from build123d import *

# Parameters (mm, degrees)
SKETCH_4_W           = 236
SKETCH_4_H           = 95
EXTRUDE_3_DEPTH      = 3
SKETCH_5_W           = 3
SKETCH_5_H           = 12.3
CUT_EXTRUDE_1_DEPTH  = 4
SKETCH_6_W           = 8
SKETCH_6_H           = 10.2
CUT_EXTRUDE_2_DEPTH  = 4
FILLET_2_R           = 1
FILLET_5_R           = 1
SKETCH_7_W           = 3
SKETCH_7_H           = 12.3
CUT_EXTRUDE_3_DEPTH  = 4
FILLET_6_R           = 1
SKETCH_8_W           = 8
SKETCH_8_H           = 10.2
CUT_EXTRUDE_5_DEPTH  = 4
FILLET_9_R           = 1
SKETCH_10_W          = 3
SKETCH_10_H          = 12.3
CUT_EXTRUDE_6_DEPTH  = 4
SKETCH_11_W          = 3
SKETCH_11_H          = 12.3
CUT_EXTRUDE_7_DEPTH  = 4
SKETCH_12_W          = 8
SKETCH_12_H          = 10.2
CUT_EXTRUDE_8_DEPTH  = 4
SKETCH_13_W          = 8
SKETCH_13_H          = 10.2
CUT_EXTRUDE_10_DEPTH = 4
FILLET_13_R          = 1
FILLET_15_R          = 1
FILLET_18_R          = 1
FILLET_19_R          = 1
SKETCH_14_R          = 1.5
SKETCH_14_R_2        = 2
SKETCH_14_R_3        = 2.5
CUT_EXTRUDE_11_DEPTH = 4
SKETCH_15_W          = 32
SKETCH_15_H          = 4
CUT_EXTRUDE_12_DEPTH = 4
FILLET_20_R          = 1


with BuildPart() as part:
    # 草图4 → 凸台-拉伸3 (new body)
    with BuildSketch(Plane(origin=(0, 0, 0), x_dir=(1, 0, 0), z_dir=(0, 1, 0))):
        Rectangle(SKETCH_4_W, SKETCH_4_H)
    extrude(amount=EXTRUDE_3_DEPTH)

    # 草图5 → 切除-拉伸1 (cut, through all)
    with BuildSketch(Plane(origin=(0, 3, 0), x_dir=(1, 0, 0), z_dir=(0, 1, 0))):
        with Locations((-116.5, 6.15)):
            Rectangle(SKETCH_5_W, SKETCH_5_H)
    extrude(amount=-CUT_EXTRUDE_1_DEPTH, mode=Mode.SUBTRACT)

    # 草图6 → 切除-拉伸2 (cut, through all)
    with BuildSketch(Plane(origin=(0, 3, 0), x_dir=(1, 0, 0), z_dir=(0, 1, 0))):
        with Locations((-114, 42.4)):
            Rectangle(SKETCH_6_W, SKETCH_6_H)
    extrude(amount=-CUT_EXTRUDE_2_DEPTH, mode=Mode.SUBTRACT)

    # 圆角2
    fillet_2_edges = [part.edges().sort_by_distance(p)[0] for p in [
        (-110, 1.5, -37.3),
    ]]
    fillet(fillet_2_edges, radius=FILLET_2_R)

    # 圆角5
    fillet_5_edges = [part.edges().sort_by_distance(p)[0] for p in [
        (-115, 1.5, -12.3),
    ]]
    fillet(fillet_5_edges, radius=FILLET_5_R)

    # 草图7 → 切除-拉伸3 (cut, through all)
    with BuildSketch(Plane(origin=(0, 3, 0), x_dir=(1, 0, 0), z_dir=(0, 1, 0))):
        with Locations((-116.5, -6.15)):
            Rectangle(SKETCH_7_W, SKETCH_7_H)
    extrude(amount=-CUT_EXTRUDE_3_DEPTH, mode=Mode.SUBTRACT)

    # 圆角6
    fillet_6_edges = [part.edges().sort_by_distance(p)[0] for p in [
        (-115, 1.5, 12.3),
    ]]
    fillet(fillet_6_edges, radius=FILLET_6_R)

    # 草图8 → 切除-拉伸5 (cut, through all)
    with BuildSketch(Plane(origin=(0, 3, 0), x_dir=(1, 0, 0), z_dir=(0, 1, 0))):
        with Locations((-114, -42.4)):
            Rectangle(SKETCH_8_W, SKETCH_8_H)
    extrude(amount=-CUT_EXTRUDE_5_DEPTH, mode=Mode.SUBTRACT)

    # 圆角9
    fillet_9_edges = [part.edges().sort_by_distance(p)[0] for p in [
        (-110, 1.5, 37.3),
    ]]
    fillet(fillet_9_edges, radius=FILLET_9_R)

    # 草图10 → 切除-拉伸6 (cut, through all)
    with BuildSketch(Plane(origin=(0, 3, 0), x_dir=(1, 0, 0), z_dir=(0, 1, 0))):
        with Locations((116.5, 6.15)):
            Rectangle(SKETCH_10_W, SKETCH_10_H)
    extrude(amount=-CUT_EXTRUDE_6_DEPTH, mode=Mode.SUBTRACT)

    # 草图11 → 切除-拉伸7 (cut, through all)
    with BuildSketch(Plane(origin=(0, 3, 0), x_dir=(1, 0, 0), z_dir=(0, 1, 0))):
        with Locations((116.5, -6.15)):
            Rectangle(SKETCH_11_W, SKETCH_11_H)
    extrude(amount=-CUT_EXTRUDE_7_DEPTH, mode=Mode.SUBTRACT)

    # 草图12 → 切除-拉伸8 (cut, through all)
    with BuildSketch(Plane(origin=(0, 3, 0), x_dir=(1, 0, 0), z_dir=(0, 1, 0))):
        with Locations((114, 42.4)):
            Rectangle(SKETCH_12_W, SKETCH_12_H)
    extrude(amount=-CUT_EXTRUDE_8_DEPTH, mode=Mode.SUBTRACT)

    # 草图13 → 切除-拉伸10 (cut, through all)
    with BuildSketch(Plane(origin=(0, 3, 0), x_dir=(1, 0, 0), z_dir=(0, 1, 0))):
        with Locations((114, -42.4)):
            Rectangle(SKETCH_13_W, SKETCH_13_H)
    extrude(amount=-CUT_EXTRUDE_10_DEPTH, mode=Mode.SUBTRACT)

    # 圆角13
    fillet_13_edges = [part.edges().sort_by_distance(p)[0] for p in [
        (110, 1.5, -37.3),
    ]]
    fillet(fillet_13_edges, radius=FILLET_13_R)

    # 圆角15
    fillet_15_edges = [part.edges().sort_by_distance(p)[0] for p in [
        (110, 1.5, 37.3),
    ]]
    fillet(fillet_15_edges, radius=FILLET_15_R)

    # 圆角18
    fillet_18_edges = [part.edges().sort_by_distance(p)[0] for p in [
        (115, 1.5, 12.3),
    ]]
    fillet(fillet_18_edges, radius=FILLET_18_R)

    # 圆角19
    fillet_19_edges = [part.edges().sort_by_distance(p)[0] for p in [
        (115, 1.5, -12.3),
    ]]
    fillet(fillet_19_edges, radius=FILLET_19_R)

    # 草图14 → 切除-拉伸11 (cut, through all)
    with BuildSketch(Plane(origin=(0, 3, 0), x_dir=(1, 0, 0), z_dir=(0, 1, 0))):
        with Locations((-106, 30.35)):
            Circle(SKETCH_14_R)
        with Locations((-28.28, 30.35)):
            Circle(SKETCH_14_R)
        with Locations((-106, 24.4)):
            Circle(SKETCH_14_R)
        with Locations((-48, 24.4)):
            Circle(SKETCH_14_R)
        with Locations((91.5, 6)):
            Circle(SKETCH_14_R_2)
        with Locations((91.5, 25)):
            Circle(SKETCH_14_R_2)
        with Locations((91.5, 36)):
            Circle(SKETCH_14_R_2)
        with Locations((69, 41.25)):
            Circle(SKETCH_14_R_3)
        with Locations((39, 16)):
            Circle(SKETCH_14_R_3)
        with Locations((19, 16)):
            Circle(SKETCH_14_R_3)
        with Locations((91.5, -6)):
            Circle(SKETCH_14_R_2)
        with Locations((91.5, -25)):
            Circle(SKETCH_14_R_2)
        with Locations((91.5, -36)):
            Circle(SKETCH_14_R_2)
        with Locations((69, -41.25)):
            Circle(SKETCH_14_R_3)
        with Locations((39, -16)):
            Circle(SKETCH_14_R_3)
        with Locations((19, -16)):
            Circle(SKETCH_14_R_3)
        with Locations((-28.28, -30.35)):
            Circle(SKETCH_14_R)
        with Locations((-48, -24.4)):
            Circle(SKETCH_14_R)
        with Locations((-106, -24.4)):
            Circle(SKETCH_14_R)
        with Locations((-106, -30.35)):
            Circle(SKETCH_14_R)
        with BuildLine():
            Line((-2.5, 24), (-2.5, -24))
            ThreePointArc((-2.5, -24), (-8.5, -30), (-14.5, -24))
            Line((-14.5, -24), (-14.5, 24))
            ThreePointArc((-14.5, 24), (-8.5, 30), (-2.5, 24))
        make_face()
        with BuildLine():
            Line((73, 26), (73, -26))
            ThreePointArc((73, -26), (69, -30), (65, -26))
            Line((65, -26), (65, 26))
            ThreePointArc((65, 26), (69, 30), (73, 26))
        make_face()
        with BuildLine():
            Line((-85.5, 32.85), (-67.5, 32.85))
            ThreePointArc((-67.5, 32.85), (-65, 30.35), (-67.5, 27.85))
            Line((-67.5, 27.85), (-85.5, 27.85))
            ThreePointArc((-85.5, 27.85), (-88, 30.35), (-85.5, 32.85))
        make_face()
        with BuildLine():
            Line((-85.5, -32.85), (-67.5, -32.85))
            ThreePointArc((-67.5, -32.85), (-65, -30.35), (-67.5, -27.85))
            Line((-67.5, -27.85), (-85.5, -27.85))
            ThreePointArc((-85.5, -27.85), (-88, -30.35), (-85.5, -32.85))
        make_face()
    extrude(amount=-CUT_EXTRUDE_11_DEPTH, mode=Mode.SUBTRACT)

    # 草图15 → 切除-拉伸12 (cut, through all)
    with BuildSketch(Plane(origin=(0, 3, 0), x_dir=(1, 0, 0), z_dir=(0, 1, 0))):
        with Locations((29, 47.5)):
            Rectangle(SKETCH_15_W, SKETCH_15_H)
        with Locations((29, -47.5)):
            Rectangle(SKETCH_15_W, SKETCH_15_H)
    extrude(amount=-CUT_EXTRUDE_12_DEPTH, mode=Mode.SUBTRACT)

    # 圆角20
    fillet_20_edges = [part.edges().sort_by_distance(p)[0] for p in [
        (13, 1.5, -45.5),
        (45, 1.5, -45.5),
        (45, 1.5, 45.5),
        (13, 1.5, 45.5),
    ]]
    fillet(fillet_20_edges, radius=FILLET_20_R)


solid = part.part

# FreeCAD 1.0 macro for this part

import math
import FreeCAD as App
import Part
import Sketcher
from FreeCAD import Vector
Q = App.Units.Quantity


def edges_at(feature, points):
    """Names of the edges that pass closest to the given points."""
    edges = feature.Shape.Edges
    near = lambda p: min(range(len(edges)), key=lambda i: edges[i].distToShape(Part.Vertex(*p))[0])
    return sorted({f"Edge{near(p) + 1}" for p in points})


def add_polygon(sketch, points):
    """Adds a closed chain of lines whose ends are joined by coincident constraints."""
    first, n = sketch.GeometryCount, len(points)
    for a, b in zip(points, points[1:] + points[:1]):
        sketch.addGeometry(Part.LineSegment(App.Vector(*a, 0), App.Vector(*b, 0)), False)
    for i in range(n):
        sketch.addConstraint(Sketcher.Constraint("Coincident", first + i, 2, first + (i + 1) % n, 1))

doc = App.newDocument("Part")
body = doc.addObject("PartDesign::Body", "Body")

# Sketch on XZ plane
sketch1 = doc.addObject("Sketcher::SketchObject", "Sketch")
body.addObject(sketch1)
sketch1.AttachmentSupport = (doc.XZ_Plane, [""])
sketch1.MapMode = "FlatFace"
add_polygon(sketch1, [(-118, -47.5), (-118, 47.5), (118, 47.5), (118, -47.5)])  # lines 0-3
sketch1.addConstraint([
    Sketcher.Constraint("Vertical", 0),
    Sketcher.Constraint("Horizontal", 1),
    Sketcher.Constraint("Vertical", 2),
    Sketcher.Constraint("Horizontal", 3),
    Sketcher.Constraint("Symmetric", 0, 2, 2, 2, -1, 1),
    Sketcher.Constraint("DistanceX", 1, 1, 1, 2, Q("236 mm")),
    Sketcher.Constraint("DistanceY", 0, 1, 0, 2, Q("95 mm")),
])
pad1 = doc.addObject("PartDesign::Pad", "Pad")
body.addObject(pad1)
pad1.Profile = sketch1
pad1.Length = 3
pad1.Reversed = True

# Sketch on XZ plane
sketch2 = doc.addObject("Sketcher::SketchObject", "Sketch001")
body.addObject(sketch2)
sketch2.AttachmentSupport = (doc.XZ_Plane, [""])
sketch2.MapMode = "FlatFace"
sketch2.AttachmentOffset = App.Placement(Vector(0, 0, -3), App.Rotation())
add_polygon(sketch2, [(-118, -12.3), (-118, 0), (-115, 0), (-115, -12.3)])  # lines 0-3
sketch2.addConstraint([
    Sketcher.Constraint("Vertical", 0),
    Sketcher.Constraint("Horizontal", 1),
    Sketcher.Constraint("Vertical", 2),
    Sketcher.Constraint("Horizontal", 3),
    Sketcher.Constraint("PointOnObject", 0, 2, -1),
    Sketcher.Constraint("DistanceX", 1, 1, 1, 2, Q("3 mm")),
    Sketcher.Constraint("DistanceY", 0, 1, 0, 2, Q("12.3 mm")),
    Sketcher.Constraint("DistanceX", 0, 2, -1, 1, Q("118 mm")),
])
pocket1 = doc.addObject("PartDesign::Pocket", "Pocket")
body.addObject(pocket1)
pocket1.Profile = sketch2
pocket1.Type = "ThroughAll"
pocket1.Reversed = True

# Sketch on XZ plane
sketch3 = doc.addObject("Sketcher::SketchObject", "Sketch002")
body.addObject(sketch3)
sketch3.AttachmentSupport = (doc.XZ_Plane, [""])
sketch3.MapMode = "FlatFace"
sketch3.AttachmentOffset = App.Placement(Vector(0, 0, -3), App.Rotation())
add_polygon(sketch3, [(-118, -47.5), (-118, -37.3), (-110, -37.3), (-110, -47.5)])  # lines 0-3
sketch3.addConstraint([
    Sketcher.Constraint("Vertical", 0),
    Sketcher.Constraint("Horizontal", 1),
    Sketcher.Constraint("Vertical", 2),
    Sketcher.Constraint("Horizontal", 3),
    Sketcher.Constraint("DistanceX", 1, 1, 1, 2, Q("8 mm")),
    Sketcher.Constraint("DistanceY", 0, 1, 0, 2, Q("10.2 mm")),
    Sketcher.Constraint("DistanceX", 0, 2, -1, 1, Q("118 mm")),
    Sketcher.Constraint("DistanceY", 0, 2, -1, 1, Q("37.3 mm")),
])
pocket2 = doc.addObject("PartDesign::Pocket", "Pocket001")
body.addObject(pocket2)
pocket2.Profile = sketch3
pocket2.Type = "ThroughAll"
pocket2.Reversed = True
doc.recompute()

fillet = doc.addObject("PartDesign::Fillet", "Fillet")
body.addObject(fillet)
fillet.Base = (pocket2, edges_at(pocket2, [(-110, 1.5, -37.3)]))
fillet.Radius = 1
doc.recompute()

fillet2 = doc.addObject("PartDesign::Fillet", "Fillet001")
body.addObject(fillet2)
fillet2.Base = (fillet, edges_at(fillet, [(-115, 1.5, -12.3)]))
fillet2.Radius = 1

# Sketch on XZ plane
sketch4 = doc.addObject("Sketcher::SketchObject", "Sketch003")
body.addObject(sketch4)
sketch4.AttachmentSupport = (doc.XZ_Plane, [""])
sketch4.MapMode = "FlatFace"
sketch4.AttachmentOffset = App.Placement(Vector(0, 0, -3), App.Rotation())
add_polygon(sketch4, [(-118, 0), (-118, 12.3), (-115, 12.3), (-115, 0)])  # lines 0-3
sketch4.addConstraint([
    Sketcher.Constraint("Vertical", 0),
    Sketcher.Constraint("Horizontal", 1),
    Sketcher.Constraint("Vertical", 2),
    Sketcher.Constraint("Horizontal", 3),
    Sketcher.Constraint("PointOnObject", 2, 2, -1),
    Sketcher.Constraint("DistanceX", 1, 1, 1, 2, Q("3 mm")),
    Sketcher.Constraint("DistanceY", 0, 1, 0, 2, Q("12.3 mm")),
    Sketcher.Constraint("DistanceX", 0, 2, -1, 1, Q("118 mm")),
])
pocket3 = doc.addObject("PartDesign::Pocket", "Pocket002")
body.addObject(pocket3)
pocket3.Profile = sketch4
pocket3.Type = "ThroughAll"
pocket3.Reversed = True
doc.recompute()

fillet3 = doc.addObject("PartDesign::Fillet", "Fillet002")
body.addObject(fillet3)
fillet3.Base = (pocket3, edges_at(pocket3, [(-115, 1.5, 12.3)]))
fillet3.Radius = 1

# Sketch on XZ plane
sketch5 = doc.addObject("Sketcher::SketchObject", "Sketch004")
body.addObject(sketch5)
sketch5.AttachmentSupport = (doc.XZ_Plane, [""])
sketch5.MapMode = "FlatFace"
sketch5.AttachmentOffset = App.Placement(Vector(0, 0, -3), App.Rotation())
add_polygon(sketch5, [(-118, 37.3), (-118, 47.5), (-110, 47.5), (-110, 37.3)])  # lines 0-3
sketch5.addConstraint([
    Sketcher.Constraint("Vertical", 0),
    Sketcher.Constraint("Horizontal", 1),
    Sketcher.Constraint("Vertical", 2),
    Sketcher.Constraint("Horizontal", 3),
    Sketcher.Constraint("DistanceX", 1, 1, 1, 2, Q("8 mm")),
    Sketcher.Constraint("DistanceY", 0, 1, 0, 2, Q("10.2 mm")),
    Sketcher.Constraint("DistanceX", 0, 2, -1, 1, Q("118 mm")),
    Sketcher.Constraint("DistanceY", -1, 1, 0, 2, Q("47.5 mm")),
])
pocket4 = doc.addObject("PartDesign::Pocket", "Pocket003")
body.addObject(pocket4)
pocket4.Profile = sketch5
pocket4.Type = "ThroughAll"
pocket4.Reversed = True
doc.recompute()

fillet4 = doc.addObject("PartDesign::Fillet", "Fillet003")
body.addObject(fillet4)
fillet4.Base = (pocket4, edges_at(pocket4, [(-110, 1.5, 37.3)]))
fillet4.Radius = 1

# Sketch on XZ plane
sketch6 = doc.addObject("Sketcher::SketchObject", "Sketch005")
body.addObject(sketch6)
sketch6.AttachmentSupport = (doc.XZ_Plane, [""])
sketch6.MapMode = "FlatFace"
sketch6.AttachmentOffset = App.Placement(Vector(0, 0, -3), App.Rotation())
add_polygon(sketch6, [(115, -12.3), (115, 0), (118, 0), (118, -12.3)])  # lines 0-3
sketch6.addConstraint([
    Sketcher.Constraint("Vertical", 0),
    Sketcher.Constraint("Horizontal", 1),
    Sketcher.Constraint("Vertical", 2),
    Sketcher.Constraint("Horizontal", 3),
    Sketcher.Constraint("PointOnObject", 0, 2, -1),
    Sketcher.Constraint("DistanceX", 1, 1, 1, 2, Q("3 mm")),
    Sketcher.Constraint("DistanceY", 0, 1, 0, 2, Q("12.3 mm")),
    Sketcher.Constraint("DistanceX", -1, 1, 0, 2, Q("115 mm")),
])
pocket5 = doc.addObject("PartDesign::Pocket", "Pocket004")
body.addObject(pocket5)
pocket5.Profile = sketch6
pocket5.Type = "ThroughAll"
pocket5.Reversed = True

# Sketch on XZ plane
sketch7 = doc.addObject("Sketcher::SketchObject", "Sketch006")
body.addObject(sketch7)
sketch7.AttachmentSupport = (doc.XZ_Plane, [""])
sketch7.MapMode = "FlatFace"
sketch7.AttachmentOffset = App.Placement(Vector(0, 0, -3), App.Rotation())
add_polygon(sketch7, [(115, 0), (115, 12.3), (118, 12.3), (118, 0)])  # lines 0-3
sketch7.addConstraint([
    Sketcher.Constraint("Vertical", 0),
    Sketcher.Constraint("Horizontal", 1),
    Sketcher.Constraint("Vertical", 2),
    Sketcher.Constraint("Horizontal", 3),
    Sketcher.Constraint("PointOnObject", 2, 2, -1),
    Sketcher.Constraint("DistanceX", 1, 1, 1, 2, Q("3 mm")),
    Sketcher.Constraint("DistanceY", 0, 1, 0, 2, Q("12.3 mm")),
    Sketcher.Constraint("DistanceX", -1, 1, 0, 2, Q("115 mm")),
])
pocket6 = doc.addObject("PartDesign::Pocket", "Pocket005")
body.addObject(pocket6)
pocket6.Profile = sketch7
pocket6.Type = "ThroughAll"
pocket6.Reversed = True

# Sketch on XZ plane
sketch8 = doc.addObject("Sketcher::SketchObject", "Sketch007")
body.addObject(sketch8)
sketch8.AttachmentSupport = (doc.XZ_Plane, [""])
sketch8.MapMode = "FlatFace"
sketch8.AttachmentOffset = App.Placement(Vector(0, 0, -3), App.Rotation())
add_polygon(sketch8, [(110, -47.5), (110, -37.3), (118, -37.3), (118, -47.5)])  # lines 0-3
sketch8.addConstraint([
    Sketcher.Constraint("Vertical", 0),
    Sketcher.Constraint("Horizontal", 1),
    Sketcher.Constraint("Vertical", 2),
    Sketcher.Constraint("Horizontal", 3),
    Sketcher.Constraint("DistanceX", 1, 1, 1, 2, Q("8 mm")),
    Sketcher.Constraint("DistanceY", 0, 1, 0, 2, Q("10.2 mm")),
    Sketcher.Constraint("DistanceX", -1, 1, 0, 2, Q("110 mm")),
    Sketcher.Constraint("DistanceY", 0, 2, -1, 1, Q("37.3 mm")),
])
pocket7 = doc.addObject("PartDesign::Pocket", "Pocket006")
body.addObject(pocket7)
pocket7.Profile = sketch8
pocket7.Type = "ThroughAll"
pocket7.Reversed = True

# Sketch on XZ plane
sketch9 = doc.addObject("Sketcher::SketchObject", "Sketch008")
body.addObject(sketch9)
sketch9.AttachmentSupport = (doc.XZ_Plane, [""])
sketch9.MapMode = "FlatFace"
sketch9.AttachmentOffset = App.Placement(Vector(0, 0, -3), App.Rotation())
add_polygon(sketch9, [(110, 37.3), (110, 47.5), (118, 47.5), (118, 37.3)])  # lines 0-3
sketch9.addConstraint([
    Sketcher.Constraint("Vertical", 0),
    Sketcher.Constraint("Horizontal", 1),
    Sketcher.Constraint("Vertical", 2),
    Sketcher.Constraint("Horizontal", 3),
    Sketcher.Constraint("DistanceX", 1, 1, 1, 2, Q("8 mm")),
    Sketcher.Constraint("DistanceY", 0, 1, 0, 2, Q("10.2 mm")),
    Sketcher.Constraint("DistanceX", -1, 1, 0, 2, Q("110 mm")),
    Sketcher.Constraint("DistanceY", -1, 1, 0, 2, Q("47.5 mm")),
])
pocket8 = doc.addObject("PartDesign::Pocket", "Pocket007")
body.addObject(pocket8)
pocket8.Profile = sketch9
pocket8.Type = "ThroughAll"
pocket8.Reversed = True
doc.recompute()

fillet5 = doc.addObject("PartDesign::Fillet", "Fillet004")
body.addObject(fillet5)
fillet5.Base = (pocket8, edges_at(pocket8, [(110, 1.5, -37.3)]))
fillet5.Radius = 1
doc.recompute()

fillet6 = doc.addObject("PartDesign::Fillet", "Fillet005")
body.addObject(fillet6)
fillet6.Base = (fillet5, edges_at(fillet5, [(110, 1.5, 37.3)]))
fillet6.Radius = 1
doc.recompute()

fillet7 = doc.addObject("PartDesign::Fillet", "Fillet006")
body.addObject(fillet7)
fillet7.Base = (fillet6, edges_at(fillet6, [(115, 1.5, 12.3)]))
fillet7.Radius = 1
doc.recompute()

fillet8 = doc.addObject("PartDesign::Fillet", "Fillet007")
body.addObject(fillet8)
fillet8.Base = (fillet7, edges_at(fillet7, [(115, 1.5, -12.3)]))
fillet8.Radius = 1

# Sketch on XZ plane
sketch10 = doc.addObject("Sketcher::SketchObject", "Sketch009")
body.addObject(sketch10)
sketch10.AttachmentSupport = (doc.XZ_Plane, [""])
sketch10.MapMode = "FlatFace"
sketch10.AttachmentOffset = App.Placement(Vector(0, 0, -3), App.Rotation())
sketch10.addGeometry([
    Part.Circle(Vector(-106, -30.35, 0), Vector(0, 0, 1), 1.5),  # 0
    Part.Circle(Vector(-28.28, -30.35, 0), Vector(0, 0, 1), 1.5),  # 1
    Part.Circle(Vector(-106, -24.4, 0), Vector(0, 0, 1), 1.5),  # 2
    Part.Circle(Vector(-48, -24.4, 0), Vector(0, 0, 1), 1.5),  # 3
    Part.Circle(Vector(91.5, -6, 0), Vector(0, 0, 1), 2),  # 4
    Part.Circle(Vector(91.5, -25, 0), Vector(0, 0, 1), 2),  # 5
    Part.Circle(Vector(91.5, -36, 0), Vector(0, 0, 1), 2),  # 6
    Part.Circle(Vector(69, -41.25, 0), Vector(0, 0, 1), 2.5),  # 7
    Part.Circle(Vector(39, -16, 0), Vector(0, 0, 1), 2.5),  # 8
    Part.Circle(Vector(19, -16, 0), Vector(0, 0, 1), 2.5),  # 9
    Part.Circle(Vector(91.5, 6, 0), Vector(0, 0, 1), 2),  # 10
    Part.Circle(Vector(91.5, 25, 0), Vector(0, 0, 1), 2),  # 11
    Part.Circle(Vector(91.5, 36, 0), Vector(0, 0, 1), 2),  # 12
    Part.Circle(Vector(69, 41.25, 0), Vector(0, 0, 1), 2.5),  # 13
    Part.Circle(Vector(39, 16, 0), Vector(0, 0, 1), 2.5),  # 14
    Part.Circle(Vector(19, 16, 0), Vector(0, 0, 1), 2.5),  # 15
    Part.Circle(Vector(-28.28, 30.35, 0), Vector(0, 0, 1), 1.5),  # 16
    Part.Circle(Vector(-48, 24.4, 0), Vector(0, 0, 1), 1.5),  # 17
    Part.Circle(Vector(-106, 24.4, 0), Vector(0, 0, 1), 1.5),  # 18
    Part.Circle(Vector(-106, 30.35, 0), Vector(0, 0, 1), 1.5),  # 19
    Part.LineSegment(Vector(-2.5, 24, 0), Vector(-2.5, -24, 0)),  # 20
    Part.ArcOfCircle(Part.Circle(Vector(-8.5, -24, 0), Vector(0, 0, 1), 6), math.radians(180), math.radians(360)),  # 21
    Part.LineSegment(Vector(-14.5, -24, 0), Vector(-14.5, 24, 0)),  # 22
    Part.ArcOfCircle(Part.Circle(Vector(-8.5, 24, 0), Vector(0, 0, 1), 6), math.radians(0), math.radians(180)),  # 23
    Part.LineSegment(Vector(73, 26, 0), Vector(73, -26, 0)),  # 24
    Part.ArcOfCircle(Part.Circle(Vector(69, -26, 0), Vector(0, 0, 1), 4), math.radians(180), math.radians(360)),  # 25
    Part.LineSegment(Vector(65, -26, 0), Vector(65, 26, 0)),  # 26
    Part.ArcOfCircle(Part.Circle(Vector(69, 26, 0), Vector(0, 0, 1), 4), math.radians(0), math.radians(180)),  # 27
    Part.LineSegment(Vector(-67.5, -32.85, 0), Vector(-85.5, -32.85, 0)),  # 28
    Part.ArcOfCircle(Part.Circle(Vector(-85.5, -30.35, 0), Vector(0, 0, 1), 2.5), math.radians(90), math.radians(270)),  # 29
    Part.LineSegment(Vector(-85.5, -27.85, 0), Vector(-67.5, -27.85, 0)),  # 30
    Part.ArcOfCircle(Part.Circle(Vector(-67.5, -30.35, 0), Vector(0, 0, 1), 2.5), math.radians(-90), math.radians(90)),  # 31
    Part.LineSegment(Vector(-85.5, 32.85, 0), Vector(-67.5, 32.85, 0)),  # 32
    Part.ArcOfCircle(Part.Circle(Vector(-67.5, 30.35, 0), Vector(0, 0, 1), 2.5), math.radians(-90), math.radians(90)),  # 33
    Part.LineSegment(Vector(-67.5, 27.85, 0), Vector(-85.5, 27.85, 0)),  # 34
    Part.ArcOfCircle(Part.Circle(Vector(-85.5, 30.35, 0), Vector(0, 0, 1), 2.5), math.radians(90), math.radians(270)),  # 35
], False)
sketch10.addConstraint([
    Sketcher.Constraint("Tangent", 20, 2, 21, 2),
    Sketcher.Constraint("Tangent", 21, 1, 22, 1),
    Sketcher.Constraint("Tangent", 22, 2, 23, 2),
    Sketcher.Constraint("Tangent", 23, 1, 20, 1),
    Sketcher.Constraint("Tangent", 24, 2, 25, 2),
    Sketcher.Constraint("Tangent", 25, 1, 26, 1),
    Sketcher.Constraint("Tangent", 26, 2, 27, 2),
    Sketcher.Constraint("Tangent", 27, 1, 24, 1),
    Sketcher.Constraint("Tangent", 28, 2, 29, 2),
    Sketcher.Constraint("Tangent", 29, 1, 30, 1),
    Sketcher.Constraint("Tangent", 30, 2, 31, 2),
    Sketcher.Constraint("Tangent", 31, 1, 28, 1),
    Sketcher.Constraint("Tangent", 32, 2, 33, 2),
    Sketcher.Constraint("Tangent", 33, 1, 34, 1),
    Sketcher.Constraint("Tangent", 34, 2, 35, 2),
    Sketcher.Constraint("Tangent", 35, 1, 32, 1),
    Sketcher.Constraint("Vertical", 20),
    Sketcher.Constraint("Vertical", 22),
    Sketcher.Constraint("Vertical", 24),
    Sketcher.Constraint("Vertical", 26),
    Sketcher.Constraint("Horizontal", 28),
    Sketcher.Constraint("Horizontal", 30),
    Sketcher.Constraint("Horizontal", 32),
    Sketcher.Constraint("Horizontal", 34),
    Sketcher.Constraint("Equal", 0, 1),
    Sketcher.Constraint("Equal", 1, 2),
    Sketcher.Constraint("Equal", 2, 3),
    Sketcher.Constraint("Equal", 4, 5),
    Sketcher.Constraint("Equal", 5, 6),
    Sketcher.Constraint("Equal", 7, 8),
    Sketcher.Constraint("Equal", 8, 9),
    Sketcher.Constraint("Equal", 6, 10),
    Sketcher.Constraint("Equal", 10, 11),
    Sketcher.Constraint("Equal", 11, 12),
    Sketcher.Constraint("Equal", 9, 13),
    Sketcher.Constraint("Equal", 13, 14),
    Sketcher.Constraint("Equal", 14, 15),
    Sketcher.Constraint("Equal", 3, 16),
    Sketcher.Constraint("Equal", 16, 17),
    Sketcher.Constraint("Equal", 17, 18),
    Sketcher.Constraint("Equal", 18, 19),
    Sketcher.Constraint("Equal", 15, 29),
    Sketcher.Constraint("Equal", 31, 33),
    Sketcher.Constraint("Symmetric", 4, 3, 10, 3, -1),
    Sketcher.Constraint("Symmetric", 5, 3, 11, 3, -1),
    Sketcher.Constraint("Symmetric", 6, 3, 12, 3, -1),
    Sketcher.Constraint("Symmetric", 7, 3, 13, 3, -1),
    Sketcher.Constraint("Symmetric", 8, 3, 14, 3, -1),
    Sketcher.Constraint("Symmetric", 9, 3, 15, 3, -1),
    Sketcher.Constraint("Symmetric", 1, 3, 16, 3, -1),
    Sketcher.Constraint("Symmetric", 3, 3, 17, 3, -1),
    Sketcher.Constraint("Symmetric", 2, 3, 18, 3, -1),
    Sketcher.Constraint("Symmetric", 0, 3, 19, 3, -1),
    Sketcher.Constraint("Symmetric", 31, 3, 33, 3, -1),
    Sketcher.Constraint("Horizontal", 0, 3, 1, 3),
    Sketcher.Constraint("Horizontal", 2, 3, 3, 3),
    Sketcher.Constraint("Horizontal", 8, 3, 9, 3),
    Sketcher.Constraint("Horizontal", 1, 3, 29, 3),
    Sketcher.Constraint("Vertical", 0, 3, 2, 3),
    Sketcher.Constraint("Vertical", 4, 3, 5, 3),
    Sketcher.Constraint("Vertical", 5, 3, 6, 3),
    Sketcher.Constraint("Vertical", 13, 3, 25, 3),
    Sketcher.Constraint("Vertical", 29, 3, 35, 3),
    Sketcher.Constraint("Diameter", 0, Q("3 mm")),
    Sketcher.Constraint("Diameter", 4, Q("4 mm")),
    Sketcher.Constraint("Diameter", 7, Q("5 mm")),
    Sketcher.Constraint("Radius", 21, Q("6 mm")),
    Sketcher.Constraint("Radius", 25, Q("4 mm")),
    Sketcher.Constraint("DistanceX", 28, 2, 28, 1, Q("18 mm")),
    Sketcher.Constraint("DistanceY", 20, 2, 20, 1, Q("48 mm")),
    Sketcher.Constraint("DistanceY", 24, 2, 24, 1, Q("52 mm")),
    Sketcher.Constraint("DistanceX", 0, 3, -1, 1, Q("106 mm")),
    Sketcher.Constraint("DistanceX", 3, 3, -1, 1, Q("48 mm")),
    Sketcher.Constraint("DistanceY", 4, 3, -1, 1, Q("6 mm")),
    Sketcher.Constraint("DistanceY", 5, 3, -1, 1, Q("25 mm")),
    Sketcher.Constraint("DistanceY", 6, 3, -1, 1, Q("36 mm")),
    Sketcher.Constraint("DistanceX", -1, 1, 7, 3, Q("69 mm")),
    Sketcher.Constraint("DistanceX", -1, 1, 8, 3, Q("39 mm")),
    Sketcher.Constraint("DistanceY", 8, 3, -1, 1, Q("16 mm")),
    Sketcher.Constraint("DistanceX", -1, 1, 9, 3, Q("19 mm")),
    Sketcher.Constraint("DistanceY", 21, 3, -1, 1, Q("24 mm")),
    Sketcher.Constraint("DistanceY", 25, 3, -1, 1, Q("26 mm")),
    Sketcher.Constraint("DistanceY", 2, 3, -1, 1, Q("24.4 mm")),
    Sketcher.Constraint("DistanceX", -1, 1, 4, 3, Q("91.5 mm")),
    Sketcher.Constraint("DistanceX", 21, 3, -1, 1, Q("8.5 mm")),
    Sketcher.Constraint("DistanceX", 29, 3, -1, 1, Q("85.5 mm")),
    Sketcher.Constraint("DistanceY", 7, 3, 1, 3, Q("10.9 mm")),
    Sketcher.Constraint("DistanceY", 1, 3, 16, 3, Q("60.7 mm")),
    Sketcher.Constraint("DistanceX", 1, 3, -1, 1, Q("28.28 mm")),
])
pocket9 = doc.addObject("PartDesign::Pocket", "Pocket008")
body.addObject(pocket9)
pocket9.Profile = sketch10
pocket9.Type = "ThroughAll"
pocket9.Reversed = True

# Sketch on XZ plane
sketch11 = doc.addObject("Sketcher::SketchObject", "Sketch010")
body.addObject(sketch11)
sketch11.AttachmentSupport = (doc.XZ_Plane, [""])
sketch11.MapMode = "FlatFace"
sketch11.AttachmentOffset = App.Placement(Vector(0, 0, -3), App.Rotation())
add_polygon(sketch11, [(13, -49.5), (13, -45.5), (45, -45.5), (45, -49.5)])  # lines 0-3
add_polygon(sketch11, [(13, 45.5), (13, 49.5), (45, 49.5), (45, 45.5)])  # lines 4-7
sketch11.addConstraint([
    Sketcher.Constraint("Vertical", 0),
    Sketcher.Constraint("Horizontal", 1),
    Sketcher.Constraint("Vertical", 2),
    Sketcher.Constraint("Horizontal", 3),
    Sketcher.Constraint("Vertical", 4),
    Sketcher.Constraint("Horizontal", 5),
    Sketcher.Constraint("Vertical", 6),
    Sketcher.Constraint("Horizontal", 7),
    Sketcher.Constraint("Symmetric", 3, 2, 4, 2, -1),
    Sketcher.Constraint("Symmetric", 1, 2, 6, 2, -1),
    Sketcher.Constraint("DistanceX", 1, 1, 1, 2, Q("32 mm")),
    Sketcher.Constraint("DistanceY", 0, 1, 0, 2, Q("4 mm")),
    Sketcher.Constraint("DistanceX", -1, 1, 0, 2, Q("13 mm")),
    Sketcher.Constraint("DistanceY", 0, 2, 4, 2, Q("95 mm")),
])
pocket10 = doc.addObject("PartDesign::Pocket", "Pocket009")
body.addObject(pocket10)
pocket10.Profile = sketch11
pocket10.Type = "ThroughAll"
pocket10.Reversed = True
doc.recompute()

fillet9 = doc.addObject("PartDesign::Fillet", "Fillet008")
body.addObject(fillet9)
fillet9.Base = (pocket10, edges_at(pocket10, [
    (13, 1.5, -45.5),
    (45, 1.5, -45.5),
    (45, 1.5, 45.5),
    (13, 1.5, 45.5),
]))
fillet9.Radius = 1

doc.recompute()
